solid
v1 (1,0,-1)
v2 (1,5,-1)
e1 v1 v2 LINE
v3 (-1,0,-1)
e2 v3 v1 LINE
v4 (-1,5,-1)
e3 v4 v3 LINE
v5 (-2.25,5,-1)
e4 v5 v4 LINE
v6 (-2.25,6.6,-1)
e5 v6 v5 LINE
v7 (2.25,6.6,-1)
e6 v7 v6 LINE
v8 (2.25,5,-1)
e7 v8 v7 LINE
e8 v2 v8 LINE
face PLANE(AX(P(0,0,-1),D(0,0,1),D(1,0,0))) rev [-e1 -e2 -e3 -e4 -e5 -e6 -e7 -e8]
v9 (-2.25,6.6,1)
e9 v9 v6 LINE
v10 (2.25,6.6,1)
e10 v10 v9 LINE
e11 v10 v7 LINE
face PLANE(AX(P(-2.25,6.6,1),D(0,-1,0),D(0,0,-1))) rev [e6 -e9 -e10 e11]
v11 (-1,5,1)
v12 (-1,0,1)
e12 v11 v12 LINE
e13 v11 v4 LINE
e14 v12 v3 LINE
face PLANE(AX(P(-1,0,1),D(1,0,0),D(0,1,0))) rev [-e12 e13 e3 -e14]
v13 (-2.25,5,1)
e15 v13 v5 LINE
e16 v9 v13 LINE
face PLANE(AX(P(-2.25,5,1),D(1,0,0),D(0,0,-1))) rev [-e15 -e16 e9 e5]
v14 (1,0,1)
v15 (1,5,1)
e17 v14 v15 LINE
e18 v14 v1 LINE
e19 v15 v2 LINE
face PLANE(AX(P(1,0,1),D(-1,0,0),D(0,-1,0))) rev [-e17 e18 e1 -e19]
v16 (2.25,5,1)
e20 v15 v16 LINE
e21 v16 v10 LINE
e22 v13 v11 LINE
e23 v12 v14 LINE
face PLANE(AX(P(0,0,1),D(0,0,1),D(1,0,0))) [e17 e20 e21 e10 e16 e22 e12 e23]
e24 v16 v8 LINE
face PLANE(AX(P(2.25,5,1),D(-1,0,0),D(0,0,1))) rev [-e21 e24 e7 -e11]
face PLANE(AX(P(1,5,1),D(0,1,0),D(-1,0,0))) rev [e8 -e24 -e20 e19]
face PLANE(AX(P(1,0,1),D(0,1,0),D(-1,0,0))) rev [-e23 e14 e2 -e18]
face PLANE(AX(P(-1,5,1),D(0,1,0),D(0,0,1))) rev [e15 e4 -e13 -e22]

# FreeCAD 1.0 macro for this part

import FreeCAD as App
import Part
import Sketcher

V = App.Vector

doc = App.newDocument("Part")
body = doc.addObject("PartDesign::Body", "Body")

sketch1 = doc.addObject("Sketcher::SketchObject", "Sketch")
body.addObject(sketch1)
sketch1.AttachmentSupport = (doc.XY_Plane, [""])
sketch1.MapMode = "FlatFace"
sketch1.addGeometry([
    Part.LineSegment(V(-1, 0, 0), V(1, 0, 0)),
    Part.LineSegment(V(1, 0, 0), V(1, 5, 0)),
    Part.LineSegment(V(1, 5, 0), V(2.2, 5, 0)),
    Part.LineSegment(V(2.2, 5, 0), V(2.2, 6.6, 0)),
    Part.LineSegment(V(2.2, 6.6, 0), V(-2.2, 6.6, 0)),
    Part.LineSegment(V(-2.2, 6.6, 0), V(-2.2, 5, 0)),
    Part.LineSegment(V(-2.2, 5, 0), V(-1, 5, 0)),
    Part.LineSegment(V(-1, 5, 0), V(-1, 0, 0)),
], False)
sketch1.addConstraint([
    Sketcher.Constraint("Coincident", 0, 2, 1, 1),
    Sketcher.Constraint("Coincident", 1, 2, 2, 1),
    Sketcher.Constraint("Coincident", 2, 2, 3, 1),
    Sketcher.Constraint("Coincident", 3, 2, 4, 1),
    Sketcher.Constraint("Coincident", 4, 2, 5, 1),
    Sketcher.Constraint("Coincident", 5, 2, 6, 1),
    Sketcher.Constraint("Coincident", 6, 2, 7, 1),
    Sketcher.Constraint("Coincident", 7, 2, 0, 1),
    Sketcher.Constraint("Horizontal", 0),
    Sketcher.Constraint("Vertical", 1),
    Sketcher.Constraint("Horizontal", 2),
    Sketcher.Constraint("Vertical", 3),
    Sketcher.Constraint("Horizontal", 4),
    Sketcher.Constraint("Vertical", 5),
    Sketcher.Constraint("Horizontal", 6),
    Sketcher.Constraint("Vertical", 7),
    Sketcher.Constraint("Symmetric", 0, 2, 7, 2, -1, 1),
    Sketcher.Constraint("Symmetric", 2, 2, 5, 2, -2),
    Sketcher.Constraint("DistanceX", 0, 1, 0, 2, 2.0),
    Sketcher.Constraint("DistanceY", 1, 1, 1, 2, 5.0),
    Sketcher.Constraint("DistanceX", 4, 2, 4, 1, 4.5),
    Sketcher.Constraint("DistanceY", 3, 1, 3, 2, 1.6),
])
pad1 = doc.addObject("PartDesign::Pad", "Pad")
body.addObject(pad1)
pad1.Profile = sketch1
pad1.Length = 2
pad1.Midplane = True

doc.recompute()
